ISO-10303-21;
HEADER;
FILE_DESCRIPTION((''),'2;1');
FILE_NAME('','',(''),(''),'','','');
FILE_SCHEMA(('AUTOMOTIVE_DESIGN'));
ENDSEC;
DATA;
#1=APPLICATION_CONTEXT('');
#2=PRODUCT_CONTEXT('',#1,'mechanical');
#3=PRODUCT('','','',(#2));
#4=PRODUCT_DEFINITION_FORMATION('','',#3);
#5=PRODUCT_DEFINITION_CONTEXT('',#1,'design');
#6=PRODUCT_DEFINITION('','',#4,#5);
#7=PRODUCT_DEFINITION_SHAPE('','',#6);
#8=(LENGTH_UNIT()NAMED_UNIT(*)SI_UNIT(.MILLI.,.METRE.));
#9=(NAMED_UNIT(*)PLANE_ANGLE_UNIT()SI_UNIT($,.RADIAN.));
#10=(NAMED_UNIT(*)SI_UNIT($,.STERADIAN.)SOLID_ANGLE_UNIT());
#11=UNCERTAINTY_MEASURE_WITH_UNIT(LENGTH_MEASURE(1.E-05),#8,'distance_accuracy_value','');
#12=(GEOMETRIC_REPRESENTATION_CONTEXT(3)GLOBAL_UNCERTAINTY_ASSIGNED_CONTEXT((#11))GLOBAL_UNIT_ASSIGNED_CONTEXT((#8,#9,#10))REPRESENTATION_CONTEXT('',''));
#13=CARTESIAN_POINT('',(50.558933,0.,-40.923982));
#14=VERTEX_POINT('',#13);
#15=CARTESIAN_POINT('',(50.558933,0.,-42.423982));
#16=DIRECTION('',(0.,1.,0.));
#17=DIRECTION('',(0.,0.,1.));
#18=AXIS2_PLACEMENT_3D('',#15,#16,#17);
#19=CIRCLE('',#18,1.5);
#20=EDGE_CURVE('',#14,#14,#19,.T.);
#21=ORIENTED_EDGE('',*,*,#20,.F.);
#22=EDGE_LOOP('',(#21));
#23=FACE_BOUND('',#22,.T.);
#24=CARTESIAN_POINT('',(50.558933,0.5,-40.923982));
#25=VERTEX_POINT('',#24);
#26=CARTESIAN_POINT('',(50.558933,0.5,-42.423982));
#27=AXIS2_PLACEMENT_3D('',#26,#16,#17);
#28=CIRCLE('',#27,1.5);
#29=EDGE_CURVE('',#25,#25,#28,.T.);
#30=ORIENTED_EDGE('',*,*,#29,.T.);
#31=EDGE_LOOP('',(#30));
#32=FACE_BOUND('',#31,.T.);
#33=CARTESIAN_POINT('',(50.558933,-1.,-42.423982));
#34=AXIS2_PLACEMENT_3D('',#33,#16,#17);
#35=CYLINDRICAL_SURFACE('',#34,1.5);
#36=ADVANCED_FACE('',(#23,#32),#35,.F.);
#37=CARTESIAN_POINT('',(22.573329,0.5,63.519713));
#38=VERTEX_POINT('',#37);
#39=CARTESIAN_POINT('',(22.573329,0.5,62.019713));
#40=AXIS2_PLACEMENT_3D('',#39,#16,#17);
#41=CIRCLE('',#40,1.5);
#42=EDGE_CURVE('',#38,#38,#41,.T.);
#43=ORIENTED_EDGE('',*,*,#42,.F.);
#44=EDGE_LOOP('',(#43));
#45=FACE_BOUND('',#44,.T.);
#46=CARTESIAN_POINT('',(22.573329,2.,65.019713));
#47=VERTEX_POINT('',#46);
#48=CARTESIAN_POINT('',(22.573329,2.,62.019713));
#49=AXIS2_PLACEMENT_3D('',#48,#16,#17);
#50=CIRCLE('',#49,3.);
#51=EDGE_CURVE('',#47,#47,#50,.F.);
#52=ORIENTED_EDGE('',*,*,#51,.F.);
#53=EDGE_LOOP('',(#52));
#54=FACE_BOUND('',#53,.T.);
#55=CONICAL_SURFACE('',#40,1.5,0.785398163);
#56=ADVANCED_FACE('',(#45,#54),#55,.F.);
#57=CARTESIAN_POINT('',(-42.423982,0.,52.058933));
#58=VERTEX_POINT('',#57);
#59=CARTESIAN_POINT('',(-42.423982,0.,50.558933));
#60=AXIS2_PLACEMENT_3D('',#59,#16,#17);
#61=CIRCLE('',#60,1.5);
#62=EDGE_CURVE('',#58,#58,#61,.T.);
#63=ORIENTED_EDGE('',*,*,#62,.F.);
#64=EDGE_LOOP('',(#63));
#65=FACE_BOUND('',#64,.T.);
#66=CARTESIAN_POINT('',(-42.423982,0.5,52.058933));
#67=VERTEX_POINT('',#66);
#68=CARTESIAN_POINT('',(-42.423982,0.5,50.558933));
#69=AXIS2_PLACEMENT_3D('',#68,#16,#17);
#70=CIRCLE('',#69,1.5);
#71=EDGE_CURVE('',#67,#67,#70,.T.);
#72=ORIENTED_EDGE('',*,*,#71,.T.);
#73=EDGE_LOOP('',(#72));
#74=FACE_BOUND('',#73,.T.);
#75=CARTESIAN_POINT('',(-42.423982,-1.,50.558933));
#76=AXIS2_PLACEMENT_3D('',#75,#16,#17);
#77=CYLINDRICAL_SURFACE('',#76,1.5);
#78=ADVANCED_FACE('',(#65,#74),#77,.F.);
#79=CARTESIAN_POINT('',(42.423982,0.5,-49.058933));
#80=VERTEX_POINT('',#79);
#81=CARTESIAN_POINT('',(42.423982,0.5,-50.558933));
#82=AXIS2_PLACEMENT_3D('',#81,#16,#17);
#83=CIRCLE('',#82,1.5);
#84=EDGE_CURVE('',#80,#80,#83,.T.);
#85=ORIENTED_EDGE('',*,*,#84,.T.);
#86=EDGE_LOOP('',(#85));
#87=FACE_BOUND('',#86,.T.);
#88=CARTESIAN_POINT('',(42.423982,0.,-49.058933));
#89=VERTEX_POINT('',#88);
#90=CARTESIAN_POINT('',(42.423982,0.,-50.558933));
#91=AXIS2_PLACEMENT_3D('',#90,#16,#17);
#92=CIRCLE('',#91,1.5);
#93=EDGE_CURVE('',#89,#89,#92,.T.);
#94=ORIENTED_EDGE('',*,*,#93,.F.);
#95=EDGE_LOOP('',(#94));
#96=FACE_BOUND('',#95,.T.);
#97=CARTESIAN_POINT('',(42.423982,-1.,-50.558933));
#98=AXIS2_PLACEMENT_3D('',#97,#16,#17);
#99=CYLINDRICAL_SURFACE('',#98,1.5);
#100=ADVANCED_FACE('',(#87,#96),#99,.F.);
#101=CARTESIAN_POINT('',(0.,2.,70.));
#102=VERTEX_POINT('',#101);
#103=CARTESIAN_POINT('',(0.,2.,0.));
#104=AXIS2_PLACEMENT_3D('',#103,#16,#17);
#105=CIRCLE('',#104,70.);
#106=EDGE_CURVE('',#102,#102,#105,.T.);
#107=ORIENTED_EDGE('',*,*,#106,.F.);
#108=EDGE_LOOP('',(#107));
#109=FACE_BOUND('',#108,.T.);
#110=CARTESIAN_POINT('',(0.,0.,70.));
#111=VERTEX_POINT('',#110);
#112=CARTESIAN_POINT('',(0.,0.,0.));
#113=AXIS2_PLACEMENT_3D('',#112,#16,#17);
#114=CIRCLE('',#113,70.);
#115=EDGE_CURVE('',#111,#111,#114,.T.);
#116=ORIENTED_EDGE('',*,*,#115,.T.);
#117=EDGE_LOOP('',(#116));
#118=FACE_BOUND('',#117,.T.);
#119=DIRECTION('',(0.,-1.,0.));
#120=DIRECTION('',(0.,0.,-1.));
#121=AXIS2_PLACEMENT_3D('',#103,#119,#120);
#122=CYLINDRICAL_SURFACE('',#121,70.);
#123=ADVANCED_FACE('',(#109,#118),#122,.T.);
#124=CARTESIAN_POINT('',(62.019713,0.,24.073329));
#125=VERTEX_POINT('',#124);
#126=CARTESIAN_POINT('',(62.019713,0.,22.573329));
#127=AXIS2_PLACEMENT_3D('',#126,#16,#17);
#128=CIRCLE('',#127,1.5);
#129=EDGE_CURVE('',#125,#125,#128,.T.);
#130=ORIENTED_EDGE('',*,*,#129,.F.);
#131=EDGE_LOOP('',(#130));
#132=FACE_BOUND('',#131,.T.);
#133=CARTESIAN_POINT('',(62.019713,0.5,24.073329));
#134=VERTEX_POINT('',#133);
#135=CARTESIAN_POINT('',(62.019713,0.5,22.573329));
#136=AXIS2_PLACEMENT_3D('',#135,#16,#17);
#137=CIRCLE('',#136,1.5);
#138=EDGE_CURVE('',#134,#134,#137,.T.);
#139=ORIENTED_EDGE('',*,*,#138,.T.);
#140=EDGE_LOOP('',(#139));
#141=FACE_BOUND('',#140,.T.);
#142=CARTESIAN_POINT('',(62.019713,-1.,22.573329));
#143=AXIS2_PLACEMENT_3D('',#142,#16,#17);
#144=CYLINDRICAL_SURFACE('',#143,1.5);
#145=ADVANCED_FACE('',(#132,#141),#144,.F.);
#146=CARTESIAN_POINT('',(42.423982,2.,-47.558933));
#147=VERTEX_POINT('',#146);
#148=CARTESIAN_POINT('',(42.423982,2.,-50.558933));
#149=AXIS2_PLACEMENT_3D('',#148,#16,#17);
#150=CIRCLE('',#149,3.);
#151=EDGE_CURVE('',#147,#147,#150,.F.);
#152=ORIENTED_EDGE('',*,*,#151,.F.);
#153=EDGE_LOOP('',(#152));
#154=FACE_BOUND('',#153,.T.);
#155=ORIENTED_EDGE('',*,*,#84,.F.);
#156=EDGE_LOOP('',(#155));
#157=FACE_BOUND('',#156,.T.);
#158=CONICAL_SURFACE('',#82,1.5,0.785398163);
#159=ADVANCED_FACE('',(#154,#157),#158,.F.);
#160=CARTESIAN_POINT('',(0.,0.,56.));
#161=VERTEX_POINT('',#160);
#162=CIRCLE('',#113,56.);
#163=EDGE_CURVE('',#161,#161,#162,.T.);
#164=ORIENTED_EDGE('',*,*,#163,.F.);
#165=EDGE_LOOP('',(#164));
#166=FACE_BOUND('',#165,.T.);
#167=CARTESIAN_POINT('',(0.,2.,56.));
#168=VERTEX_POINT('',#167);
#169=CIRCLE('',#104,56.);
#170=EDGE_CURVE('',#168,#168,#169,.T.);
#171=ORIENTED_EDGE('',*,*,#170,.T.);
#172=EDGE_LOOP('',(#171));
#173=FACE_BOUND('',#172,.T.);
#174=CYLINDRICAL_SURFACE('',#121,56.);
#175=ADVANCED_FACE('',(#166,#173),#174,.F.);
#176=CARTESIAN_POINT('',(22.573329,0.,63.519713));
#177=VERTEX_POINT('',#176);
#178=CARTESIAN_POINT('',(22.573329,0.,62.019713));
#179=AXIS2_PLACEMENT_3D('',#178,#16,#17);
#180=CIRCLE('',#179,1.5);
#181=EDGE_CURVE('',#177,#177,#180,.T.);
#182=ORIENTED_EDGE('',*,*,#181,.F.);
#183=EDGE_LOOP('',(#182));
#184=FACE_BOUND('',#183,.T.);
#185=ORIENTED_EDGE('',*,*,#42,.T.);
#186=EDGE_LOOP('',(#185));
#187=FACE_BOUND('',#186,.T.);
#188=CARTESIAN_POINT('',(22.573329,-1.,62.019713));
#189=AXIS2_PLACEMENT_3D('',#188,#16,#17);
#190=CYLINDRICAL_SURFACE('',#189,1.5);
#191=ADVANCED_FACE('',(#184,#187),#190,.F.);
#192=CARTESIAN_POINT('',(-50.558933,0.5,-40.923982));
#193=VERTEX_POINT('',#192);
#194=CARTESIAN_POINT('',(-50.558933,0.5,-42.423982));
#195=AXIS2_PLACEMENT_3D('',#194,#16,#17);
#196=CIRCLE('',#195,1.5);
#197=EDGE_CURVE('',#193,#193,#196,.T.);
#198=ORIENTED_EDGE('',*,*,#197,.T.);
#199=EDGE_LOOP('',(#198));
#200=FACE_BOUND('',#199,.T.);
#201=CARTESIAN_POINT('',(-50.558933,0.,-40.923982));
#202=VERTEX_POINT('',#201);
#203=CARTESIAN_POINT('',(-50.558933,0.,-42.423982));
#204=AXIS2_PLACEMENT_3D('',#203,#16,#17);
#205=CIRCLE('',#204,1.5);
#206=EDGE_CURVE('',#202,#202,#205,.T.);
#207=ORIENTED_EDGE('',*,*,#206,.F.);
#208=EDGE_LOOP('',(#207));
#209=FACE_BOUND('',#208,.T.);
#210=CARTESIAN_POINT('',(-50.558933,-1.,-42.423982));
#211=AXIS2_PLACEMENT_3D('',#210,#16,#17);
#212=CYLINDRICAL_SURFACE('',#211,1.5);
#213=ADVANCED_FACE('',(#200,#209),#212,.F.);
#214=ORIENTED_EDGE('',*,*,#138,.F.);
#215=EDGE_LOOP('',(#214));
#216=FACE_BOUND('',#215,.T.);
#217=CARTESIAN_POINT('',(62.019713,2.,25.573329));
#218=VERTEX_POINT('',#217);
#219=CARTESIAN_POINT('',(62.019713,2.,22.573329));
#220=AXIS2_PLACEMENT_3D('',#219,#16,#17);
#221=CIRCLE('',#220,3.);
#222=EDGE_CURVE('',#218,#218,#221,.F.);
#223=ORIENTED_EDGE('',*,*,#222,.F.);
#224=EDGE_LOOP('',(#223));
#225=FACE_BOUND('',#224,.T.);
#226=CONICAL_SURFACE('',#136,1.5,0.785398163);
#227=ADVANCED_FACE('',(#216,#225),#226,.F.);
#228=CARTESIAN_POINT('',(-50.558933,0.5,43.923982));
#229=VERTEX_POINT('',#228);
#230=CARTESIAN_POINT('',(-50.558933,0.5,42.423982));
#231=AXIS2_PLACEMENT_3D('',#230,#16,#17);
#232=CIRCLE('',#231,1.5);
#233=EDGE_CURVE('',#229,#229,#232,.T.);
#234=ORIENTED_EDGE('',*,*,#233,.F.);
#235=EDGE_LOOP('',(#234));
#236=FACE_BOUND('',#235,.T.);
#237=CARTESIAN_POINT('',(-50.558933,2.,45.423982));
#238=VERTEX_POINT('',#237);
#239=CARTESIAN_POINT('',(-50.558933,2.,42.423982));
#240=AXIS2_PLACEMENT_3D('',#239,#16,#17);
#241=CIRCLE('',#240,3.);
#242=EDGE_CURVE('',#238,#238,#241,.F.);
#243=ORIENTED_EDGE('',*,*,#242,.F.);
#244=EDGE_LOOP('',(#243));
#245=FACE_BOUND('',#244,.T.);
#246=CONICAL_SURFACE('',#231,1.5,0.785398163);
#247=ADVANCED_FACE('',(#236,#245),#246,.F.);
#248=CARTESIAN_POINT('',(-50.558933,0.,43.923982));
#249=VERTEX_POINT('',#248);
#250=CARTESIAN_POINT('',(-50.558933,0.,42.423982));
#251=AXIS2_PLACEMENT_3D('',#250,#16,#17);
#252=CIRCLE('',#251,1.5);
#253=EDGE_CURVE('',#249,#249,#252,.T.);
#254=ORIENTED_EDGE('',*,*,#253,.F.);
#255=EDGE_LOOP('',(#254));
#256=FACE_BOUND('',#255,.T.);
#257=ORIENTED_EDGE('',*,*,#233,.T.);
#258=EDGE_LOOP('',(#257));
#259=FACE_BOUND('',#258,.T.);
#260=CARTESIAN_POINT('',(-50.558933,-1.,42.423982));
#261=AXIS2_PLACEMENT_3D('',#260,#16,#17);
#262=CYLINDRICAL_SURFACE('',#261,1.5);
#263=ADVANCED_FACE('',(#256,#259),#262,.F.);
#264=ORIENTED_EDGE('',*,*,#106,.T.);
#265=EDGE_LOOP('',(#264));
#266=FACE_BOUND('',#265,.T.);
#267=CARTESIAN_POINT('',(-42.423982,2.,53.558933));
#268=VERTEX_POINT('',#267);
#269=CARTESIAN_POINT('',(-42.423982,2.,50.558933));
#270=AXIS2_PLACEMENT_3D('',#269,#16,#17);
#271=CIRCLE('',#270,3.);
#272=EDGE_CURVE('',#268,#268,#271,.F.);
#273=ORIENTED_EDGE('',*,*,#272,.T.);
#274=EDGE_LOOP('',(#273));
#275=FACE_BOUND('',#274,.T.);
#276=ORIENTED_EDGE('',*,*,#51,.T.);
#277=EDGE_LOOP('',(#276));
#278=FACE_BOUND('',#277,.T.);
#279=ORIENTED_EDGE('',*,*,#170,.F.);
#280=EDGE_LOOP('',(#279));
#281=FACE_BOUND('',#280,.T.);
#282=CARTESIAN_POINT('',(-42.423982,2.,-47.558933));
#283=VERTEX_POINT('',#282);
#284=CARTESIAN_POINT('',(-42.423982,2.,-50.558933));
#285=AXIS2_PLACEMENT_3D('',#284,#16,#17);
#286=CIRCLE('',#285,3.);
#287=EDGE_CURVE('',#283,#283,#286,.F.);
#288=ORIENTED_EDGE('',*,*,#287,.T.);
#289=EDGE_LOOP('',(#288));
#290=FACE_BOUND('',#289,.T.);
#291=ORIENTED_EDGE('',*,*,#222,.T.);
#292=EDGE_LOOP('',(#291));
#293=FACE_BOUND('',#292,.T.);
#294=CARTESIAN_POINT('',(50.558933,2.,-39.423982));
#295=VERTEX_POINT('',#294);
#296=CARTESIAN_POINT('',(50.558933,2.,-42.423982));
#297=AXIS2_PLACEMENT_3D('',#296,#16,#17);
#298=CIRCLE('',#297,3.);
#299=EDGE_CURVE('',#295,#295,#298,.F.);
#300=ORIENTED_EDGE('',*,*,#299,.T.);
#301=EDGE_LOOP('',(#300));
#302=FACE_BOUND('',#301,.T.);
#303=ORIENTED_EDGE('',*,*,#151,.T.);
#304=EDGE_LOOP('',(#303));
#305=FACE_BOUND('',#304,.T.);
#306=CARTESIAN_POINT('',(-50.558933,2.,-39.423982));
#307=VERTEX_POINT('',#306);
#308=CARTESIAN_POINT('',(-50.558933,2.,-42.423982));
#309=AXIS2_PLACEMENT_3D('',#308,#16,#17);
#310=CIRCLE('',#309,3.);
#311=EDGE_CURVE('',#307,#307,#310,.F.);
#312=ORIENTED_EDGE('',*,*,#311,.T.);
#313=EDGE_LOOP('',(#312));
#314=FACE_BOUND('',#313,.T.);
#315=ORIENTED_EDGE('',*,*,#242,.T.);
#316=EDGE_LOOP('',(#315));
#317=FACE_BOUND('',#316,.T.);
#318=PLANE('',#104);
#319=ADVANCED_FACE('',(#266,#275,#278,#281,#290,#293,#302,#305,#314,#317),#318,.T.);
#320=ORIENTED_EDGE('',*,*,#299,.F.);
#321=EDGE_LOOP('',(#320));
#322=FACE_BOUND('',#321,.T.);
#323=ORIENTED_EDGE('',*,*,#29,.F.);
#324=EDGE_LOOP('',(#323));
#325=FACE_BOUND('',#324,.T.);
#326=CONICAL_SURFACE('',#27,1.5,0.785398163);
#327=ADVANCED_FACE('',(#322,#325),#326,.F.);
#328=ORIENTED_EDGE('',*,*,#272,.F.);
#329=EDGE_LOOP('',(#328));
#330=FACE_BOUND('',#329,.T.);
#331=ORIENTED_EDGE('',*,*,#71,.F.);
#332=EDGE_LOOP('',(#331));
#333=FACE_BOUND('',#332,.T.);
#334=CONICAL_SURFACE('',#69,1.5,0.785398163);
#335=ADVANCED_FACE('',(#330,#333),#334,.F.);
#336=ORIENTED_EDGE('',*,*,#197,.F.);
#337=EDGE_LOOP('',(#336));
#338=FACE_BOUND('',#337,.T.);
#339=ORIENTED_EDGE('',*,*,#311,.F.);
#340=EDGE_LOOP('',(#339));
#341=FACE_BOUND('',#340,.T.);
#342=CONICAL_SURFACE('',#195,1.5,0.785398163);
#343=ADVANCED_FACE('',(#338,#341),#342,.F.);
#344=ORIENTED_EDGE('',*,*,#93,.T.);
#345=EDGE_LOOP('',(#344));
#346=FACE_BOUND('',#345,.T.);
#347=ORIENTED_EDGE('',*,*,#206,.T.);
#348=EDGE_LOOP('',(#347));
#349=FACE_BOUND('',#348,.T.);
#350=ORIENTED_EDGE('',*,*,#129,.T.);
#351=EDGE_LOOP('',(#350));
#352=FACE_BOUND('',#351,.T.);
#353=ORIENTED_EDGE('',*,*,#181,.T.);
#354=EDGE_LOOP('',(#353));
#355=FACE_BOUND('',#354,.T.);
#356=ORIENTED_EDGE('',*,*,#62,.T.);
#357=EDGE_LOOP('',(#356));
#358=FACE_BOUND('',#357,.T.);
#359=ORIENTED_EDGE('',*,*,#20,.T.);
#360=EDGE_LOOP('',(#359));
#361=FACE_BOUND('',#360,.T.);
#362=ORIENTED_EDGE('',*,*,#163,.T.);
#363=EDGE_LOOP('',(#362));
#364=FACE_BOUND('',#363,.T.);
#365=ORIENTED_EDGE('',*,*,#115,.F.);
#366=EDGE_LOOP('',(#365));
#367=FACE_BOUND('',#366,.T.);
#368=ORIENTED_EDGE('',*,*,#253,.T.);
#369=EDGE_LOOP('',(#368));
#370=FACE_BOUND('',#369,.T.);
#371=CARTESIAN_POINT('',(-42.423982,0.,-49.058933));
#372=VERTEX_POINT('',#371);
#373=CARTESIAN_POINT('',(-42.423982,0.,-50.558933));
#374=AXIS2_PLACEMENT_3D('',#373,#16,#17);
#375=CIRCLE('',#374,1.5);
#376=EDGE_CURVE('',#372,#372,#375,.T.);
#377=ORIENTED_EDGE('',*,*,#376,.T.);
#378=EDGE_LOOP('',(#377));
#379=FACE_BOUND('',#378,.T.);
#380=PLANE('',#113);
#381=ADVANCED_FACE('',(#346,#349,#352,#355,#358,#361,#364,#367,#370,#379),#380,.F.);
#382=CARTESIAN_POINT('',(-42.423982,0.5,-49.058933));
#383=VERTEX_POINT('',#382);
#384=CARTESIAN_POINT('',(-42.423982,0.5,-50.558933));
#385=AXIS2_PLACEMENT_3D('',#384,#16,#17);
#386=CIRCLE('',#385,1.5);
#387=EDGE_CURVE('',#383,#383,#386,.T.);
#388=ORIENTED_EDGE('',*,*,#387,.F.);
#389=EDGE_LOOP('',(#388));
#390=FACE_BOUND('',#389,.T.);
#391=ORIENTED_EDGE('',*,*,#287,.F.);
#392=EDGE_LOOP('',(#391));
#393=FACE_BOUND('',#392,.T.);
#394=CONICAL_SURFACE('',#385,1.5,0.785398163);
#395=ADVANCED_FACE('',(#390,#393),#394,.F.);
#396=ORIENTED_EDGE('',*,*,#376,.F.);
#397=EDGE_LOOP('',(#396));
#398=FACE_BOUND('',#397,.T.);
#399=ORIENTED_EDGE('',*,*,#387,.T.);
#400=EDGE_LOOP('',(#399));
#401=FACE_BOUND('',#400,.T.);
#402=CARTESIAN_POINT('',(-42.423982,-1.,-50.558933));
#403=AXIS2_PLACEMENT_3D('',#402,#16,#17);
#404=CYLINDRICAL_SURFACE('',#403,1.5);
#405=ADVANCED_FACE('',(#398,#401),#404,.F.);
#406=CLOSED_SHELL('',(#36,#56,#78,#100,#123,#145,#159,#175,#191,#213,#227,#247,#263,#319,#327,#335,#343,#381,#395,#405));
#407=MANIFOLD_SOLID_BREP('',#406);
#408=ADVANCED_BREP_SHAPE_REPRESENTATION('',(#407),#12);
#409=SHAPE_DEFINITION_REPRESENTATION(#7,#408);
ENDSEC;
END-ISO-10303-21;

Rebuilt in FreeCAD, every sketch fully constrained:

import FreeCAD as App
import Part
import Sketcher

V = App.Vector


def edges_at(feature, points):
    """Names of the edges that pass closest to the given points."""
    edges = feature.Shape.Edges
    near = lambda p: min(range(len(edges)), key=lambda i: edges[i].distToShape(Part.Vertex(*p))[0])
    return sorted({f"Edge{near(p) + 1}" for p in points})

doc = App.newDocument("Part")
params = doc.addObject("Spreadsheet::Sheet", "Params")
for row, (alias, value) in enumerate([
    ("sketch1_diameter", "140 mm"),
    ("sketch1_diameter2", "112 mm"),
    ("pad1_length", "2 mm"),
    ("sketch2_diameter", "3 mm"),
    ("pocket1_length", "3 mm"),
    ("chamfer_size", "1.5 mm"),
], start=1):
    params.set(f"A{row}", alias)
    params.set(f"B{row}", "=" + value)
    params.setAlias(f"B{row}", alias)

body = doc.addObject("PartDesign::Body", "Body")

# Sketch on XZ plane
sketch1 = doc.addObject("Sketcher::SketchObject", "Sketch")
body.addObject(sketch1)
sketch1.AttachmentSupport = (doc.XZ_Plane, [""])
sketch1.MapMode = "FlatFace"
sketch1.addGeometry(Part.Circle(V(0, 0, 0), V(0, 0, 1), 70), False)
sketch1.addGeometry(Part.Circle(V(0, 0, 0), V(0, 0, 1), 56), False)
sketch1.addConstraint(Sketcher.Constraint("Coincident", 0, 3, -1, 1))
sketch1.addConstraint(Sketcher.Constraint("Coincident", 1, 3, -1, 1))
sketch1.addConstraint(Sketcher.Constraint("Diameter", 0, 140.0))
sketch1.addConstraint(Sketcher.Constraint("Diameter", 1, 112.0))
sketch1.setExpression("Constraints[2]", "Params.sketch1_diameter")
sketch1.setExpression("Constraints[3]", "Params.sketch1_diameter2")
pad1 = doc.addObject("PartDesign::Pad", "Pad")
body.addObject(pad1)
pad1.Profile = sketch1
pad1.setExpression("Length", "Params.pad1_length")
pad1.Reversed = True

# Sketch on XZ plane
sketch2 = doc.addObject("Sketcher::SketchObject", "Sketch001")
body.addObject(sketch2)
sketch2.AttachmentSupport = (doc.XZ_Plane, [""])
sketch2.MapMode = "FlatFace"
sketch2.AttachmentOffset = App.Placement(V(0, 0, -2), App.Rotation())
sketch2.addGeometry(Part.Circle(V(42.4, -50.6, 0), V(0, 0, 1), 1.5), False)
sketch2.addGeometry(Part.Circle(V(50.6, -42.4, 0), V(0, 0, 1), 1.5), False)
sketch2.addGeometry(Part.Circle(V(-50.6, -42.4, 0), V(0, 0, 1), 1.5), False)
sketch2.addGeometry(Part.Circle(V(-42.4, -50.6, 0), V(0, 0, 1), 1.5), False)
sketch2.addGeometry(Part.Circle(V(-50.6, 42.4, 0), V(0, 0, 1), 1.5), False)
sketch2.addGeometry(Part.Circle(V(-42.4, 50.6, 0), V(0, 0, 1), 1.5), False)
sketch2.addGeometry(Part.Circle(V(22.6, 62, 0), V(0, 0, 1), 1.5), False)
sketch2.addGeometry(Part.Circle(V(62, 22.6, 0), V(0, 0, 1), 1.5), False)
sketch2.addConstraint(Sketcher.Constraint("Equal", 0, 1))
sketch2.addConstraint(Sketcher.Constraint("Equal", 1, 2))
sketch2.addConstraint(Sketcher.Constraint("Equal", 2, 3))
sketch2.addConstraint(Sketcher.Constraint("Equal", 3, 4))
sketch2.addConstraint(Sketcher.Constraint("Equal", 4, 5))
sketch2.addConstraint(Sketcher.Constraint("Equal", 5, 6))
sketch2.addConstraint(Sketcher.Constraint("Equal", 6, 7))
sketch2.addConstraint(Sketcher.Constraint("Symmetric", 1, 3, 4, 3, -1, 1))
sketch2.addConstraint(Sketcher.Constraint("Symmetric", 0, 3, 5, 3, -1, 1))
sketch2.addConstraint(Sketcher.Constraint("Symmetric", 1, 3, 2, 3, -2))
sketch2.addConstraint(Sketcher.Constraint("Symmetric", 0, 3, 3, 3, -2))
sketch2.addConstraint(Sketcher.Constraint("Diameter", 0, 3.0))
sketch2.addConstraint(Sketcher.Constraint("DistanceX", -1, 1, 6, 3, 22.573329))
sketch2.addConstraint(Sketcher.Constraint("DistanceY", -1, 1, 7, 3, 22.573329))
sketch2.addConstraint(Sketcher.Constraint("DistanceX", 0, 3, 1, 3, 8.134951))
sketch2.addConstraint(Sketcher.Constraint("DistanceY", 0, 3, 1, 3, 8.134951))
sketch2.addConstraint(Sketcher.Constraint("DistanceX", 5, 3, 6, 3, 64.997312))
sketch2.addConstraint(Sketcher.Constraint("DistanceY", 5, 3, 6, 3, 11.46078))
sketch2.addConstraint(Sketcher.Constraint("DistanceX", 1, 3, 7, 3, 11.46078))
sketch2.addConstraint(Sketcher.Constraint("DistanceY", 1, 3, 7, 3, 64.997312))
sketch2.setExpression("Constraints[11]", "Params.sketch2_diameter")
pocket1 = doc.addObject("PartDesign::Pocket", "Pocket")
body.addObject(pocket1)
pocket1.Profile = sketch2
pocket1.setExpression("Length", "Params.pocket1_length")
pocket1.Reversed = True
doc.recompute()

chamfer = doc.addObject("PartDesign::Chamfer", "Chamfer")
body.addObject(chamfer)
chamfer.Base = (pocket1, edges_at(pocket1, [
    (50.559, 2, -43.924),
    (22.573, 2, 60.52),
    (-50.559, 2, -43.924),
    (-42.424, 2, -52.059),
    (-50.559, 2, 40.924),
    (-42.424, 2, 49.059),
    (62.02, 2, 21.073),
    (42.424, 2, -52.059),
]))
chamfer.setExpression("Size", "Params.chamfer_size")

doc.recompute()
